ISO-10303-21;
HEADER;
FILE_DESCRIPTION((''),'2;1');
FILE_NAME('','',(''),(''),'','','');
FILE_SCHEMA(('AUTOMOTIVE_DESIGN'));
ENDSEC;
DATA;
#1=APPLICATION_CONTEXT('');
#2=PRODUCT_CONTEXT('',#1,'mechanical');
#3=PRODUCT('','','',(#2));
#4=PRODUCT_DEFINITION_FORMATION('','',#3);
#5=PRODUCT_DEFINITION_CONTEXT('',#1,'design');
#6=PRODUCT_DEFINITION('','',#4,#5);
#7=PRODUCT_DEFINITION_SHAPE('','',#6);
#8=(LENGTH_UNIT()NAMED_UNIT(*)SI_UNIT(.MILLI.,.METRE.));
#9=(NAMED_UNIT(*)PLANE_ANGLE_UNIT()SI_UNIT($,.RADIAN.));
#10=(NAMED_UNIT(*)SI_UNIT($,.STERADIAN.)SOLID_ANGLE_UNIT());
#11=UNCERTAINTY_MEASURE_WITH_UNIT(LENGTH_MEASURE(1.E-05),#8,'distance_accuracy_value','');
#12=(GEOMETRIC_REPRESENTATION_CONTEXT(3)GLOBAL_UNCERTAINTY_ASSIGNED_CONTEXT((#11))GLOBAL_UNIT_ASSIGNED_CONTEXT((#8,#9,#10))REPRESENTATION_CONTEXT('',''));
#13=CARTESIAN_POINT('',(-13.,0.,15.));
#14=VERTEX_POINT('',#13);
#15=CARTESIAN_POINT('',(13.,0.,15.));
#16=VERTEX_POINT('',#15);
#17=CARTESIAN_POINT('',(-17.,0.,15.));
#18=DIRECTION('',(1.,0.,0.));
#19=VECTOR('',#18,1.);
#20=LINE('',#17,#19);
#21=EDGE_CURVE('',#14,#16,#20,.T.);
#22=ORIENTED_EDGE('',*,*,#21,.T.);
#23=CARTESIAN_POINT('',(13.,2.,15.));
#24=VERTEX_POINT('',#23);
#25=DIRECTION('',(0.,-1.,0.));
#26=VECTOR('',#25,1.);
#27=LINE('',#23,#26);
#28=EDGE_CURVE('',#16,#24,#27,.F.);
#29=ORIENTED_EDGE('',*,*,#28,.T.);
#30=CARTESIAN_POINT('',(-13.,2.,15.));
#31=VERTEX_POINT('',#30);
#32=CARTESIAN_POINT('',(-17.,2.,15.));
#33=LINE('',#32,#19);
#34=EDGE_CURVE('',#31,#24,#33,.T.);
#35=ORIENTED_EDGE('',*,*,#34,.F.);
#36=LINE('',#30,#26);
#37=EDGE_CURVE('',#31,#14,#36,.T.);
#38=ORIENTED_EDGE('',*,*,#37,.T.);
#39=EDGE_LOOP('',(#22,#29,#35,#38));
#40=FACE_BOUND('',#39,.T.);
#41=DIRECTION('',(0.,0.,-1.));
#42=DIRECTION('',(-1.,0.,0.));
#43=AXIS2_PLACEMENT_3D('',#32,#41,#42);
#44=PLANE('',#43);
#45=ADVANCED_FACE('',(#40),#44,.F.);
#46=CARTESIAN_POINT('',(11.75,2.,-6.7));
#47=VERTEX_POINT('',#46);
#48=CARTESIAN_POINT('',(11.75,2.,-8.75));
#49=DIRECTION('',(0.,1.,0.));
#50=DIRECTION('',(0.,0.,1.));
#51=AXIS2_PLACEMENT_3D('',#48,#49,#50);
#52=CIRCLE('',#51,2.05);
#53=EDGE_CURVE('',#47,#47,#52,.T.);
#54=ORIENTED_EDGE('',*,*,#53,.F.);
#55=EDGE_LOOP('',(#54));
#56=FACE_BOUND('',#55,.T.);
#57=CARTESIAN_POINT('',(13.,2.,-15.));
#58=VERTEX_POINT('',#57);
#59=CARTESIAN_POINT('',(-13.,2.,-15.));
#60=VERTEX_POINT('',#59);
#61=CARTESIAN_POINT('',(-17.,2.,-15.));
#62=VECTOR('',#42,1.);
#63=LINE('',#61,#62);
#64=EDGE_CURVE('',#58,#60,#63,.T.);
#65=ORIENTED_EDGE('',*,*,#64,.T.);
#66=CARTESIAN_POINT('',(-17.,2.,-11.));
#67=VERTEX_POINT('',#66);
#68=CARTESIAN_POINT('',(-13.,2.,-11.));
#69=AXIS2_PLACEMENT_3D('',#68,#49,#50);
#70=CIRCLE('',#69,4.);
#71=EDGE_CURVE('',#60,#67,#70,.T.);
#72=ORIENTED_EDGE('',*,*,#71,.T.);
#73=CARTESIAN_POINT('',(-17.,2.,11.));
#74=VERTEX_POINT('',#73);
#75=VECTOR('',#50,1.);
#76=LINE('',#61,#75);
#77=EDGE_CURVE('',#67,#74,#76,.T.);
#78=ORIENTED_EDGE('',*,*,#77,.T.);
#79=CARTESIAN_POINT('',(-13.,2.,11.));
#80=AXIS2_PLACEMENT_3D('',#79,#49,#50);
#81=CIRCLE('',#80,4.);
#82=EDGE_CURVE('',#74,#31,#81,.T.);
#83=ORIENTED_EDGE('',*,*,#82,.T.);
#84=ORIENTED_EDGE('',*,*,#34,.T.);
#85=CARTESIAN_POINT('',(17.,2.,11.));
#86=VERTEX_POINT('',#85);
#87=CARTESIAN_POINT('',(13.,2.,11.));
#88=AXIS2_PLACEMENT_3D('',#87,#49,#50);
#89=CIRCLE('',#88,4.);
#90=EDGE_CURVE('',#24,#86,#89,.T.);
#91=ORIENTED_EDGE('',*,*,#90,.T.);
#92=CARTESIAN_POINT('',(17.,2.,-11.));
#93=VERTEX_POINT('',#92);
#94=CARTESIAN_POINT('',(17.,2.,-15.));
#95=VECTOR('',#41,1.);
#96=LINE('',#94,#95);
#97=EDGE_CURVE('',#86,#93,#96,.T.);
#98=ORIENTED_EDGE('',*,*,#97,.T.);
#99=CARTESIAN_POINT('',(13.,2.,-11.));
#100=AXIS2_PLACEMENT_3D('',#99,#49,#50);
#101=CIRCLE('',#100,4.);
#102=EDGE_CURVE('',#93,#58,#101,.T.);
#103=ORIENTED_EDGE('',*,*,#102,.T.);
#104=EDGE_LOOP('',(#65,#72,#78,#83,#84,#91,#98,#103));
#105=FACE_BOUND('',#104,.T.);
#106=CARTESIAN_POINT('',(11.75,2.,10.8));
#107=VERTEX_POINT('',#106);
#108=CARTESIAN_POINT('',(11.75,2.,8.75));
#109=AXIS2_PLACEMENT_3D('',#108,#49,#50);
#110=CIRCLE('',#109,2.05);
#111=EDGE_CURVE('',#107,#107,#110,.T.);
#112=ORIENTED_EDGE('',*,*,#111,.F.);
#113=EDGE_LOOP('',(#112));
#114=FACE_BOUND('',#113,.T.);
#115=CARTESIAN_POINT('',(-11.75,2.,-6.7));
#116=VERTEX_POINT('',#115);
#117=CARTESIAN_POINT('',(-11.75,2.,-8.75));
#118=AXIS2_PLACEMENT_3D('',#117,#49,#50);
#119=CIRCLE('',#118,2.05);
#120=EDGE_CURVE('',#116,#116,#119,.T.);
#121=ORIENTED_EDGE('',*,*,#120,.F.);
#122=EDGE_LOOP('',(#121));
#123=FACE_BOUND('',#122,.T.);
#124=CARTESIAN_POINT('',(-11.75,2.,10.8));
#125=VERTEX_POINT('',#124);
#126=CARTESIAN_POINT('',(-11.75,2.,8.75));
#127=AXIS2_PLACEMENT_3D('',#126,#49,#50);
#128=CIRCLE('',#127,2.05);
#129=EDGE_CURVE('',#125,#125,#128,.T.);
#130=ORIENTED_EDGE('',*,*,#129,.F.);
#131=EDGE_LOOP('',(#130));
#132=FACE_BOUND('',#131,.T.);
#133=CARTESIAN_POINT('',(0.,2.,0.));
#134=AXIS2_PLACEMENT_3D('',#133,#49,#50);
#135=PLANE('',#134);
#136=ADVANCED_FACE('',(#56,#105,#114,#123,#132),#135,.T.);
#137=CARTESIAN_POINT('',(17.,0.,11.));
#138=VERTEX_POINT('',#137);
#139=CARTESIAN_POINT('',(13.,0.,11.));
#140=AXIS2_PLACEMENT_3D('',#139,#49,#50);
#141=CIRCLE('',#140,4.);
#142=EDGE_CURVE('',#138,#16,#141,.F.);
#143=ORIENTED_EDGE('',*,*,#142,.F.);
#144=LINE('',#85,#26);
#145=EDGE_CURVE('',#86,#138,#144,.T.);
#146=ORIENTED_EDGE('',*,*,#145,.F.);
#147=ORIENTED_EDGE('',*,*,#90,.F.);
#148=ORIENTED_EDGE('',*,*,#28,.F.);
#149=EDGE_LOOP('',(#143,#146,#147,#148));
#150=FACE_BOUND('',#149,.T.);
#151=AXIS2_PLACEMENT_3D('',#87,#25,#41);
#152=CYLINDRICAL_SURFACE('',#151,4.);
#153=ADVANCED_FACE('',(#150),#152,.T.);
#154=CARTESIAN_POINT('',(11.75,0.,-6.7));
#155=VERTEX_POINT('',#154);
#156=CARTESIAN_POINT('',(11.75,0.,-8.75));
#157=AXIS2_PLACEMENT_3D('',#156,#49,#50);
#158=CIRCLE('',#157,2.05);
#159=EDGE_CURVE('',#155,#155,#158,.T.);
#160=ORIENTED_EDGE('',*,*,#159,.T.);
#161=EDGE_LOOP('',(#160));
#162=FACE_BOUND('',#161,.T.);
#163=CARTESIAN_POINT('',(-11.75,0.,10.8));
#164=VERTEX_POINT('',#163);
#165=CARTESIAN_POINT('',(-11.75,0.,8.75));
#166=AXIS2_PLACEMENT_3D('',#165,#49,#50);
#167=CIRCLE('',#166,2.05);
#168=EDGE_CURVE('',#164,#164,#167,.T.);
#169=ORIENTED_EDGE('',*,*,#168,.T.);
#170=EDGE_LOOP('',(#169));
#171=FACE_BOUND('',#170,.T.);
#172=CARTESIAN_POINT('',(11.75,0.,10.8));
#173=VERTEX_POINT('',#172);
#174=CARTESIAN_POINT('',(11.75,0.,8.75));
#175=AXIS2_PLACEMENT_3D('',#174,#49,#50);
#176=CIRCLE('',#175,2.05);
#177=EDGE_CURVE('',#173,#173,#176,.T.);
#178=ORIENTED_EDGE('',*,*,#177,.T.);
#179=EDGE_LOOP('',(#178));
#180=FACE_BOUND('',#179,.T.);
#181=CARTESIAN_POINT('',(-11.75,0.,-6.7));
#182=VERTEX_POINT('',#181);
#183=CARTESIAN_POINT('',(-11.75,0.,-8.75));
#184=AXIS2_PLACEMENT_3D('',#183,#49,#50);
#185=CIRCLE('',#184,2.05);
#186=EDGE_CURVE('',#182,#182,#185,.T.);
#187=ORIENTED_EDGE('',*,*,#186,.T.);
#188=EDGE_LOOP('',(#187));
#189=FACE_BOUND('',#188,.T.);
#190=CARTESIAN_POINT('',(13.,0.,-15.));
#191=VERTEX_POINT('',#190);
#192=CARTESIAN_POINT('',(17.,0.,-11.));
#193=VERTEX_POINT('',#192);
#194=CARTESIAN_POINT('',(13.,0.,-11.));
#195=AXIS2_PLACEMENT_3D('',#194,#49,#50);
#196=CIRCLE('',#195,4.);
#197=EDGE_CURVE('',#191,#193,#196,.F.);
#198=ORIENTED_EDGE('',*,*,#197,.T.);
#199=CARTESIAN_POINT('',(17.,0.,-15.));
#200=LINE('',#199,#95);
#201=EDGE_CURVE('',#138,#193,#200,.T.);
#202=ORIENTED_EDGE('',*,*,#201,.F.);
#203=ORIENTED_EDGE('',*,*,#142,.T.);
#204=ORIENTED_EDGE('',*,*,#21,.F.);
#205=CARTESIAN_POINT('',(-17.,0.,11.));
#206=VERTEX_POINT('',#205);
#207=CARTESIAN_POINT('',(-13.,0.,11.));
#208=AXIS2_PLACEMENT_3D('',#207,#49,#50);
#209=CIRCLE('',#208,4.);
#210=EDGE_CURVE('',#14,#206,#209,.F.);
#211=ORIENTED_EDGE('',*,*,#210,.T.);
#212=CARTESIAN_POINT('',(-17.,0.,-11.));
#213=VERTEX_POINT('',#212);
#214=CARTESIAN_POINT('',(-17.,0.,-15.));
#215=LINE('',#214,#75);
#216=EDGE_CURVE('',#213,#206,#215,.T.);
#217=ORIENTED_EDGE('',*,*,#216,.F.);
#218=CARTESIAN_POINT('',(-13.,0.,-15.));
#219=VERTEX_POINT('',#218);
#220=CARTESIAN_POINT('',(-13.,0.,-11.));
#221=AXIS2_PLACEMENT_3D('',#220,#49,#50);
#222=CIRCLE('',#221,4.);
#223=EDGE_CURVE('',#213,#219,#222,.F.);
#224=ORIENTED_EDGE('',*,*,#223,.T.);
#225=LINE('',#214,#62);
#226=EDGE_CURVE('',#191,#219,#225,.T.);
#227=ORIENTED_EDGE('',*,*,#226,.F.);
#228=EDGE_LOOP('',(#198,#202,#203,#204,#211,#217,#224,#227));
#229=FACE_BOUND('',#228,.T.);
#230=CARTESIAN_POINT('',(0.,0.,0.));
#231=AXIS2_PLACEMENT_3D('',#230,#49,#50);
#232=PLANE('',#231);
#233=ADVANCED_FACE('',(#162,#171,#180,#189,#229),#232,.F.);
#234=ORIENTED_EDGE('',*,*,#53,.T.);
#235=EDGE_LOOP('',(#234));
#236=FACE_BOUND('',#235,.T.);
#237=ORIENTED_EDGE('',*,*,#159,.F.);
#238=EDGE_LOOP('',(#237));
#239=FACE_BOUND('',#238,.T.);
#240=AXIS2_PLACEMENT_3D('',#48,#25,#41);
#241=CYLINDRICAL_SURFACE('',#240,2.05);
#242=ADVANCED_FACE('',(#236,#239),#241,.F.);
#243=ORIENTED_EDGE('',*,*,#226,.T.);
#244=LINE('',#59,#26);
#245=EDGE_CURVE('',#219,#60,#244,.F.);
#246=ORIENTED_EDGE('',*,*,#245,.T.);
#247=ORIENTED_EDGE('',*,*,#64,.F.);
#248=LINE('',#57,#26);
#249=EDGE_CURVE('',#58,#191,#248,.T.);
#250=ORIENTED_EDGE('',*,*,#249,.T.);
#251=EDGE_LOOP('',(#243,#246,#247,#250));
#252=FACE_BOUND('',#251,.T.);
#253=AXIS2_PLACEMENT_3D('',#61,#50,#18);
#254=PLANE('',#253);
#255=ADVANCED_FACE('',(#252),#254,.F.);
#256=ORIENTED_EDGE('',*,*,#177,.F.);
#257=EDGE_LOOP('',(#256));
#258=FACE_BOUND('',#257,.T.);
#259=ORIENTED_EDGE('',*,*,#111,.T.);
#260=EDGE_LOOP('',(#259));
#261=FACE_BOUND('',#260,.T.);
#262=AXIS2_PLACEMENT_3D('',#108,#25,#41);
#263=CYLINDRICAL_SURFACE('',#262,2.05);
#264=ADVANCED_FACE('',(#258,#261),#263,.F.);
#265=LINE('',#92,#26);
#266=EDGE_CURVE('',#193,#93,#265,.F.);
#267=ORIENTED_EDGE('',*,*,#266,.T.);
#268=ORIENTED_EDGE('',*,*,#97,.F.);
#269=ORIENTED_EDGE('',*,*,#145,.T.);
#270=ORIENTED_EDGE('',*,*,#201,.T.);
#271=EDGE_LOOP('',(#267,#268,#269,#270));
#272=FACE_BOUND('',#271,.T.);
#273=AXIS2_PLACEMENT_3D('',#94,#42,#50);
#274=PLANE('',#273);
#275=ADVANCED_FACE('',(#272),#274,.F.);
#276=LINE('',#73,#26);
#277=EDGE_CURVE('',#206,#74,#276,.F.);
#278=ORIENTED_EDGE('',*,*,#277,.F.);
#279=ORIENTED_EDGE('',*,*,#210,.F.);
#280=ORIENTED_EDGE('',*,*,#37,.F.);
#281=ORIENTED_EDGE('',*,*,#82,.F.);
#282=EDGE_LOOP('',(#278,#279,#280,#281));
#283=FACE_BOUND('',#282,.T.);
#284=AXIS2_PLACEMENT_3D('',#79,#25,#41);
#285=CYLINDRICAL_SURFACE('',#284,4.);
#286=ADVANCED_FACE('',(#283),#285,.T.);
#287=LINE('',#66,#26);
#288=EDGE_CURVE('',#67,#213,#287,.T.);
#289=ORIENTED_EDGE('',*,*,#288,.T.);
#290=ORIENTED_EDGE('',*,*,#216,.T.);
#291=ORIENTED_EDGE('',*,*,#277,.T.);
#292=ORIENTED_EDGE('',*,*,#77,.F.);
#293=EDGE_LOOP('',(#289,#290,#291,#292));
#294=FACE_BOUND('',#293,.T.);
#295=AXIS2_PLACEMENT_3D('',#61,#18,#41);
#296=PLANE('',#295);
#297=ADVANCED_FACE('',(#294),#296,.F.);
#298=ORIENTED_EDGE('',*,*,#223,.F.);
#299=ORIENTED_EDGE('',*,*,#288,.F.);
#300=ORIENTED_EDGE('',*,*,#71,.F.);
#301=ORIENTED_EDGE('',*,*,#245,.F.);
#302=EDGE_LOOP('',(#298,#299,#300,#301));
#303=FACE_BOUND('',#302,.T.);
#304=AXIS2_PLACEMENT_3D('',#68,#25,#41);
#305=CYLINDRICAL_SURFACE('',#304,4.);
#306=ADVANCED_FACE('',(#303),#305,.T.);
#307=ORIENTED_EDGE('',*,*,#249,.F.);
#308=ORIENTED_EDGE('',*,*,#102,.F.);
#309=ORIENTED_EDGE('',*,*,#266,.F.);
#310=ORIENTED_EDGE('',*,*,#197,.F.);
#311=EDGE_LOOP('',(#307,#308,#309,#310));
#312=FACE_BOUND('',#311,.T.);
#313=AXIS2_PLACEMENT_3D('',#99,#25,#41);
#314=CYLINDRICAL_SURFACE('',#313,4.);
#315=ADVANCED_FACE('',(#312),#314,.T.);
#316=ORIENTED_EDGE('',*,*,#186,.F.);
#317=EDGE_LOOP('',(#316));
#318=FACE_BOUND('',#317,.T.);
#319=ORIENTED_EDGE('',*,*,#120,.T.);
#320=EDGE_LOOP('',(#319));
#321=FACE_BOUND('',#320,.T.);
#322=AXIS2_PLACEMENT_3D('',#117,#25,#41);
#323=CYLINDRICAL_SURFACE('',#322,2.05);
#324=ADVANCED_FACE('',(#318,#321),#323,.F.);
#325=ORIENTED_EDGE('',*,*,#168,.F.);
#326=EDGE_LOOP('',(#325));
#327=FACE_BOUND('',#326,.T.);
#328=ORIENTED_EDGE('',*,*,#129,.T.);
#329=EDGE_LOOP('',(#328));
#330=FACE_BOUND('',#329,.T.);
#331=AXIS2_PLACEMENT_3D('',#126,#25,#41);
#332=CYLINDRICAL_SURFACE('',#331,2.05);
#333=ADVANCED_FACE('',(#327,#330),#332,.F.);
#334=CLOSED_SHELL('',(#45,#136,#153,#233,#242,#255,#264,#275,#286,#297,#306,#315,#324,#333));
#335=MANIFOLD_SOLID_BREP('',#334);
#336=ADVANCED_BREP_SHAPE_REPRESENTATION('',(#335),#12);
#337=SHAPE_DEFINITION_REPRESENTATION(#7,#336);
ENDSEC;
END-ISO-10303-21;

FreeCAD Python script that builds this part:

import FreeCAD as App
import Part
import Sketcher
from FreeCAD import Vector


def edges_at(feature, points):
    """Names of the edges that pass closest to the given points."""
    edges = feature.Shape.Edges
    near = lambda p: min(range(len(edges)), key=lambda i: edges[i].distToShape(Part.Vertex(*p))[0])
    return sorted({f"Edge{near(p) + 1}" for p in points})


def add_polygon(sketch, points):
    """Adds a closed chain of lines whose ends are joined by coincident constraints."""
    first, n = sketch.GeometryCount, len(points)
    for a, b in zip(points, points[1:] + points[:1]):
        sketch.addGeometry(Part.LineSegment(App.Vector(*a, 0), App.Vector(*b, 0)), False)
    for i in range(n):
        sketch.addConstraint(Sketcher.Constraint("Coincident", first + i, 2, first + (i + 1) % n, 1))

doc = App.newDocument("Part")
body = doc.addObject("PartDesign::Body", "Body")

# Sketch on XZ plane
sketch1 = body.newObject("Sketcher::SketchObject", "Sketch")
sketch1.AttachmentSupport = (doc.getObject("XZ_Plane"), [""])
sketch1.MapMode = "FlatFace"
add_polygon(sketch1, [(-17, -15), (-17, 15), (17, 15), (17, -15)])  # lines 0-3
sketch1.addGeometry(Part.Circle(Vector(-11.8, 8.8, 0), Vector(0, 0, 1), 2), False)  # 4
sketch1.addGeometry(Part.Circle(Vector(11.8, 8.8, 0), Vector(0, 0, 1), 2), False)  # 5
sketch1.addGeometry(Part.Circle(Vector(-11.8, -8.8, 0), Vector(0, 0, 1), 2), False)  # 6
sketch1.addGeometry(Part.Circle(Vector(11.8, -8.8, 0), Vector(0, 0, 1), 2), False)  # 7
sketch1.addConstraint([
    Sketcher.Constraint("Vertical", 0),
    Sketcher.Constraint("Horizontal", 1),
    Sketcher.Constraint("Vertical", 2),
    Sketcher.Constraint("Horizontal", 3),
    Sketcher.Constraint("Equal", 4, 5),
    Sketcher.Constraint("Equal", 5, 6),
    Sketcher.Constraint("Equal", 6, 7),
    Sketcher.Constraint("Symmetric", 5, 3, 6, 3, -1, 1),
    Sketcher.Constraint("Symmetric", 4, 3, 7, 3, -1, 1),
    Sketcher.Constraint("Symmetric", 0, 2, 2, 2, -1, 1),
    Sketcher.Constraint("Symmetric", 4, 3, 5, 3, -2),
    Sketcher.Constraint("Diameter", 4, 4.1),
    Sketcher.Constraint("DistanceX", 1, 1, 1, 2, 34.0),
    Sketcher.Constraint("DistanceY", 0, 1, 0, 2, 30.0),
    Sketcher.Constraint("DistanceX", 4, 3, 5, 3, 23.5),
    Sketcher.Constraint("DistanceY", 6, 3, 4, 3, 17.5),
])
pad1 = body.newObject("PartDesign::Pad", "Pad")
pad1.Profile = sketch1
pad1.Length = 2
pad1.Reversed = True
doc.recompute()

fillet = body.newObject("PartDesign::Fillet", "Fillet")
fillet.Base = (pad1, edges_at(pad1, [
    (17, 1, 15),
    (-17, 1, 15),
    (-17, 1, -15),
    (17, 1, -15),
]))
fillet.Radius = 4

doc.recompute()
